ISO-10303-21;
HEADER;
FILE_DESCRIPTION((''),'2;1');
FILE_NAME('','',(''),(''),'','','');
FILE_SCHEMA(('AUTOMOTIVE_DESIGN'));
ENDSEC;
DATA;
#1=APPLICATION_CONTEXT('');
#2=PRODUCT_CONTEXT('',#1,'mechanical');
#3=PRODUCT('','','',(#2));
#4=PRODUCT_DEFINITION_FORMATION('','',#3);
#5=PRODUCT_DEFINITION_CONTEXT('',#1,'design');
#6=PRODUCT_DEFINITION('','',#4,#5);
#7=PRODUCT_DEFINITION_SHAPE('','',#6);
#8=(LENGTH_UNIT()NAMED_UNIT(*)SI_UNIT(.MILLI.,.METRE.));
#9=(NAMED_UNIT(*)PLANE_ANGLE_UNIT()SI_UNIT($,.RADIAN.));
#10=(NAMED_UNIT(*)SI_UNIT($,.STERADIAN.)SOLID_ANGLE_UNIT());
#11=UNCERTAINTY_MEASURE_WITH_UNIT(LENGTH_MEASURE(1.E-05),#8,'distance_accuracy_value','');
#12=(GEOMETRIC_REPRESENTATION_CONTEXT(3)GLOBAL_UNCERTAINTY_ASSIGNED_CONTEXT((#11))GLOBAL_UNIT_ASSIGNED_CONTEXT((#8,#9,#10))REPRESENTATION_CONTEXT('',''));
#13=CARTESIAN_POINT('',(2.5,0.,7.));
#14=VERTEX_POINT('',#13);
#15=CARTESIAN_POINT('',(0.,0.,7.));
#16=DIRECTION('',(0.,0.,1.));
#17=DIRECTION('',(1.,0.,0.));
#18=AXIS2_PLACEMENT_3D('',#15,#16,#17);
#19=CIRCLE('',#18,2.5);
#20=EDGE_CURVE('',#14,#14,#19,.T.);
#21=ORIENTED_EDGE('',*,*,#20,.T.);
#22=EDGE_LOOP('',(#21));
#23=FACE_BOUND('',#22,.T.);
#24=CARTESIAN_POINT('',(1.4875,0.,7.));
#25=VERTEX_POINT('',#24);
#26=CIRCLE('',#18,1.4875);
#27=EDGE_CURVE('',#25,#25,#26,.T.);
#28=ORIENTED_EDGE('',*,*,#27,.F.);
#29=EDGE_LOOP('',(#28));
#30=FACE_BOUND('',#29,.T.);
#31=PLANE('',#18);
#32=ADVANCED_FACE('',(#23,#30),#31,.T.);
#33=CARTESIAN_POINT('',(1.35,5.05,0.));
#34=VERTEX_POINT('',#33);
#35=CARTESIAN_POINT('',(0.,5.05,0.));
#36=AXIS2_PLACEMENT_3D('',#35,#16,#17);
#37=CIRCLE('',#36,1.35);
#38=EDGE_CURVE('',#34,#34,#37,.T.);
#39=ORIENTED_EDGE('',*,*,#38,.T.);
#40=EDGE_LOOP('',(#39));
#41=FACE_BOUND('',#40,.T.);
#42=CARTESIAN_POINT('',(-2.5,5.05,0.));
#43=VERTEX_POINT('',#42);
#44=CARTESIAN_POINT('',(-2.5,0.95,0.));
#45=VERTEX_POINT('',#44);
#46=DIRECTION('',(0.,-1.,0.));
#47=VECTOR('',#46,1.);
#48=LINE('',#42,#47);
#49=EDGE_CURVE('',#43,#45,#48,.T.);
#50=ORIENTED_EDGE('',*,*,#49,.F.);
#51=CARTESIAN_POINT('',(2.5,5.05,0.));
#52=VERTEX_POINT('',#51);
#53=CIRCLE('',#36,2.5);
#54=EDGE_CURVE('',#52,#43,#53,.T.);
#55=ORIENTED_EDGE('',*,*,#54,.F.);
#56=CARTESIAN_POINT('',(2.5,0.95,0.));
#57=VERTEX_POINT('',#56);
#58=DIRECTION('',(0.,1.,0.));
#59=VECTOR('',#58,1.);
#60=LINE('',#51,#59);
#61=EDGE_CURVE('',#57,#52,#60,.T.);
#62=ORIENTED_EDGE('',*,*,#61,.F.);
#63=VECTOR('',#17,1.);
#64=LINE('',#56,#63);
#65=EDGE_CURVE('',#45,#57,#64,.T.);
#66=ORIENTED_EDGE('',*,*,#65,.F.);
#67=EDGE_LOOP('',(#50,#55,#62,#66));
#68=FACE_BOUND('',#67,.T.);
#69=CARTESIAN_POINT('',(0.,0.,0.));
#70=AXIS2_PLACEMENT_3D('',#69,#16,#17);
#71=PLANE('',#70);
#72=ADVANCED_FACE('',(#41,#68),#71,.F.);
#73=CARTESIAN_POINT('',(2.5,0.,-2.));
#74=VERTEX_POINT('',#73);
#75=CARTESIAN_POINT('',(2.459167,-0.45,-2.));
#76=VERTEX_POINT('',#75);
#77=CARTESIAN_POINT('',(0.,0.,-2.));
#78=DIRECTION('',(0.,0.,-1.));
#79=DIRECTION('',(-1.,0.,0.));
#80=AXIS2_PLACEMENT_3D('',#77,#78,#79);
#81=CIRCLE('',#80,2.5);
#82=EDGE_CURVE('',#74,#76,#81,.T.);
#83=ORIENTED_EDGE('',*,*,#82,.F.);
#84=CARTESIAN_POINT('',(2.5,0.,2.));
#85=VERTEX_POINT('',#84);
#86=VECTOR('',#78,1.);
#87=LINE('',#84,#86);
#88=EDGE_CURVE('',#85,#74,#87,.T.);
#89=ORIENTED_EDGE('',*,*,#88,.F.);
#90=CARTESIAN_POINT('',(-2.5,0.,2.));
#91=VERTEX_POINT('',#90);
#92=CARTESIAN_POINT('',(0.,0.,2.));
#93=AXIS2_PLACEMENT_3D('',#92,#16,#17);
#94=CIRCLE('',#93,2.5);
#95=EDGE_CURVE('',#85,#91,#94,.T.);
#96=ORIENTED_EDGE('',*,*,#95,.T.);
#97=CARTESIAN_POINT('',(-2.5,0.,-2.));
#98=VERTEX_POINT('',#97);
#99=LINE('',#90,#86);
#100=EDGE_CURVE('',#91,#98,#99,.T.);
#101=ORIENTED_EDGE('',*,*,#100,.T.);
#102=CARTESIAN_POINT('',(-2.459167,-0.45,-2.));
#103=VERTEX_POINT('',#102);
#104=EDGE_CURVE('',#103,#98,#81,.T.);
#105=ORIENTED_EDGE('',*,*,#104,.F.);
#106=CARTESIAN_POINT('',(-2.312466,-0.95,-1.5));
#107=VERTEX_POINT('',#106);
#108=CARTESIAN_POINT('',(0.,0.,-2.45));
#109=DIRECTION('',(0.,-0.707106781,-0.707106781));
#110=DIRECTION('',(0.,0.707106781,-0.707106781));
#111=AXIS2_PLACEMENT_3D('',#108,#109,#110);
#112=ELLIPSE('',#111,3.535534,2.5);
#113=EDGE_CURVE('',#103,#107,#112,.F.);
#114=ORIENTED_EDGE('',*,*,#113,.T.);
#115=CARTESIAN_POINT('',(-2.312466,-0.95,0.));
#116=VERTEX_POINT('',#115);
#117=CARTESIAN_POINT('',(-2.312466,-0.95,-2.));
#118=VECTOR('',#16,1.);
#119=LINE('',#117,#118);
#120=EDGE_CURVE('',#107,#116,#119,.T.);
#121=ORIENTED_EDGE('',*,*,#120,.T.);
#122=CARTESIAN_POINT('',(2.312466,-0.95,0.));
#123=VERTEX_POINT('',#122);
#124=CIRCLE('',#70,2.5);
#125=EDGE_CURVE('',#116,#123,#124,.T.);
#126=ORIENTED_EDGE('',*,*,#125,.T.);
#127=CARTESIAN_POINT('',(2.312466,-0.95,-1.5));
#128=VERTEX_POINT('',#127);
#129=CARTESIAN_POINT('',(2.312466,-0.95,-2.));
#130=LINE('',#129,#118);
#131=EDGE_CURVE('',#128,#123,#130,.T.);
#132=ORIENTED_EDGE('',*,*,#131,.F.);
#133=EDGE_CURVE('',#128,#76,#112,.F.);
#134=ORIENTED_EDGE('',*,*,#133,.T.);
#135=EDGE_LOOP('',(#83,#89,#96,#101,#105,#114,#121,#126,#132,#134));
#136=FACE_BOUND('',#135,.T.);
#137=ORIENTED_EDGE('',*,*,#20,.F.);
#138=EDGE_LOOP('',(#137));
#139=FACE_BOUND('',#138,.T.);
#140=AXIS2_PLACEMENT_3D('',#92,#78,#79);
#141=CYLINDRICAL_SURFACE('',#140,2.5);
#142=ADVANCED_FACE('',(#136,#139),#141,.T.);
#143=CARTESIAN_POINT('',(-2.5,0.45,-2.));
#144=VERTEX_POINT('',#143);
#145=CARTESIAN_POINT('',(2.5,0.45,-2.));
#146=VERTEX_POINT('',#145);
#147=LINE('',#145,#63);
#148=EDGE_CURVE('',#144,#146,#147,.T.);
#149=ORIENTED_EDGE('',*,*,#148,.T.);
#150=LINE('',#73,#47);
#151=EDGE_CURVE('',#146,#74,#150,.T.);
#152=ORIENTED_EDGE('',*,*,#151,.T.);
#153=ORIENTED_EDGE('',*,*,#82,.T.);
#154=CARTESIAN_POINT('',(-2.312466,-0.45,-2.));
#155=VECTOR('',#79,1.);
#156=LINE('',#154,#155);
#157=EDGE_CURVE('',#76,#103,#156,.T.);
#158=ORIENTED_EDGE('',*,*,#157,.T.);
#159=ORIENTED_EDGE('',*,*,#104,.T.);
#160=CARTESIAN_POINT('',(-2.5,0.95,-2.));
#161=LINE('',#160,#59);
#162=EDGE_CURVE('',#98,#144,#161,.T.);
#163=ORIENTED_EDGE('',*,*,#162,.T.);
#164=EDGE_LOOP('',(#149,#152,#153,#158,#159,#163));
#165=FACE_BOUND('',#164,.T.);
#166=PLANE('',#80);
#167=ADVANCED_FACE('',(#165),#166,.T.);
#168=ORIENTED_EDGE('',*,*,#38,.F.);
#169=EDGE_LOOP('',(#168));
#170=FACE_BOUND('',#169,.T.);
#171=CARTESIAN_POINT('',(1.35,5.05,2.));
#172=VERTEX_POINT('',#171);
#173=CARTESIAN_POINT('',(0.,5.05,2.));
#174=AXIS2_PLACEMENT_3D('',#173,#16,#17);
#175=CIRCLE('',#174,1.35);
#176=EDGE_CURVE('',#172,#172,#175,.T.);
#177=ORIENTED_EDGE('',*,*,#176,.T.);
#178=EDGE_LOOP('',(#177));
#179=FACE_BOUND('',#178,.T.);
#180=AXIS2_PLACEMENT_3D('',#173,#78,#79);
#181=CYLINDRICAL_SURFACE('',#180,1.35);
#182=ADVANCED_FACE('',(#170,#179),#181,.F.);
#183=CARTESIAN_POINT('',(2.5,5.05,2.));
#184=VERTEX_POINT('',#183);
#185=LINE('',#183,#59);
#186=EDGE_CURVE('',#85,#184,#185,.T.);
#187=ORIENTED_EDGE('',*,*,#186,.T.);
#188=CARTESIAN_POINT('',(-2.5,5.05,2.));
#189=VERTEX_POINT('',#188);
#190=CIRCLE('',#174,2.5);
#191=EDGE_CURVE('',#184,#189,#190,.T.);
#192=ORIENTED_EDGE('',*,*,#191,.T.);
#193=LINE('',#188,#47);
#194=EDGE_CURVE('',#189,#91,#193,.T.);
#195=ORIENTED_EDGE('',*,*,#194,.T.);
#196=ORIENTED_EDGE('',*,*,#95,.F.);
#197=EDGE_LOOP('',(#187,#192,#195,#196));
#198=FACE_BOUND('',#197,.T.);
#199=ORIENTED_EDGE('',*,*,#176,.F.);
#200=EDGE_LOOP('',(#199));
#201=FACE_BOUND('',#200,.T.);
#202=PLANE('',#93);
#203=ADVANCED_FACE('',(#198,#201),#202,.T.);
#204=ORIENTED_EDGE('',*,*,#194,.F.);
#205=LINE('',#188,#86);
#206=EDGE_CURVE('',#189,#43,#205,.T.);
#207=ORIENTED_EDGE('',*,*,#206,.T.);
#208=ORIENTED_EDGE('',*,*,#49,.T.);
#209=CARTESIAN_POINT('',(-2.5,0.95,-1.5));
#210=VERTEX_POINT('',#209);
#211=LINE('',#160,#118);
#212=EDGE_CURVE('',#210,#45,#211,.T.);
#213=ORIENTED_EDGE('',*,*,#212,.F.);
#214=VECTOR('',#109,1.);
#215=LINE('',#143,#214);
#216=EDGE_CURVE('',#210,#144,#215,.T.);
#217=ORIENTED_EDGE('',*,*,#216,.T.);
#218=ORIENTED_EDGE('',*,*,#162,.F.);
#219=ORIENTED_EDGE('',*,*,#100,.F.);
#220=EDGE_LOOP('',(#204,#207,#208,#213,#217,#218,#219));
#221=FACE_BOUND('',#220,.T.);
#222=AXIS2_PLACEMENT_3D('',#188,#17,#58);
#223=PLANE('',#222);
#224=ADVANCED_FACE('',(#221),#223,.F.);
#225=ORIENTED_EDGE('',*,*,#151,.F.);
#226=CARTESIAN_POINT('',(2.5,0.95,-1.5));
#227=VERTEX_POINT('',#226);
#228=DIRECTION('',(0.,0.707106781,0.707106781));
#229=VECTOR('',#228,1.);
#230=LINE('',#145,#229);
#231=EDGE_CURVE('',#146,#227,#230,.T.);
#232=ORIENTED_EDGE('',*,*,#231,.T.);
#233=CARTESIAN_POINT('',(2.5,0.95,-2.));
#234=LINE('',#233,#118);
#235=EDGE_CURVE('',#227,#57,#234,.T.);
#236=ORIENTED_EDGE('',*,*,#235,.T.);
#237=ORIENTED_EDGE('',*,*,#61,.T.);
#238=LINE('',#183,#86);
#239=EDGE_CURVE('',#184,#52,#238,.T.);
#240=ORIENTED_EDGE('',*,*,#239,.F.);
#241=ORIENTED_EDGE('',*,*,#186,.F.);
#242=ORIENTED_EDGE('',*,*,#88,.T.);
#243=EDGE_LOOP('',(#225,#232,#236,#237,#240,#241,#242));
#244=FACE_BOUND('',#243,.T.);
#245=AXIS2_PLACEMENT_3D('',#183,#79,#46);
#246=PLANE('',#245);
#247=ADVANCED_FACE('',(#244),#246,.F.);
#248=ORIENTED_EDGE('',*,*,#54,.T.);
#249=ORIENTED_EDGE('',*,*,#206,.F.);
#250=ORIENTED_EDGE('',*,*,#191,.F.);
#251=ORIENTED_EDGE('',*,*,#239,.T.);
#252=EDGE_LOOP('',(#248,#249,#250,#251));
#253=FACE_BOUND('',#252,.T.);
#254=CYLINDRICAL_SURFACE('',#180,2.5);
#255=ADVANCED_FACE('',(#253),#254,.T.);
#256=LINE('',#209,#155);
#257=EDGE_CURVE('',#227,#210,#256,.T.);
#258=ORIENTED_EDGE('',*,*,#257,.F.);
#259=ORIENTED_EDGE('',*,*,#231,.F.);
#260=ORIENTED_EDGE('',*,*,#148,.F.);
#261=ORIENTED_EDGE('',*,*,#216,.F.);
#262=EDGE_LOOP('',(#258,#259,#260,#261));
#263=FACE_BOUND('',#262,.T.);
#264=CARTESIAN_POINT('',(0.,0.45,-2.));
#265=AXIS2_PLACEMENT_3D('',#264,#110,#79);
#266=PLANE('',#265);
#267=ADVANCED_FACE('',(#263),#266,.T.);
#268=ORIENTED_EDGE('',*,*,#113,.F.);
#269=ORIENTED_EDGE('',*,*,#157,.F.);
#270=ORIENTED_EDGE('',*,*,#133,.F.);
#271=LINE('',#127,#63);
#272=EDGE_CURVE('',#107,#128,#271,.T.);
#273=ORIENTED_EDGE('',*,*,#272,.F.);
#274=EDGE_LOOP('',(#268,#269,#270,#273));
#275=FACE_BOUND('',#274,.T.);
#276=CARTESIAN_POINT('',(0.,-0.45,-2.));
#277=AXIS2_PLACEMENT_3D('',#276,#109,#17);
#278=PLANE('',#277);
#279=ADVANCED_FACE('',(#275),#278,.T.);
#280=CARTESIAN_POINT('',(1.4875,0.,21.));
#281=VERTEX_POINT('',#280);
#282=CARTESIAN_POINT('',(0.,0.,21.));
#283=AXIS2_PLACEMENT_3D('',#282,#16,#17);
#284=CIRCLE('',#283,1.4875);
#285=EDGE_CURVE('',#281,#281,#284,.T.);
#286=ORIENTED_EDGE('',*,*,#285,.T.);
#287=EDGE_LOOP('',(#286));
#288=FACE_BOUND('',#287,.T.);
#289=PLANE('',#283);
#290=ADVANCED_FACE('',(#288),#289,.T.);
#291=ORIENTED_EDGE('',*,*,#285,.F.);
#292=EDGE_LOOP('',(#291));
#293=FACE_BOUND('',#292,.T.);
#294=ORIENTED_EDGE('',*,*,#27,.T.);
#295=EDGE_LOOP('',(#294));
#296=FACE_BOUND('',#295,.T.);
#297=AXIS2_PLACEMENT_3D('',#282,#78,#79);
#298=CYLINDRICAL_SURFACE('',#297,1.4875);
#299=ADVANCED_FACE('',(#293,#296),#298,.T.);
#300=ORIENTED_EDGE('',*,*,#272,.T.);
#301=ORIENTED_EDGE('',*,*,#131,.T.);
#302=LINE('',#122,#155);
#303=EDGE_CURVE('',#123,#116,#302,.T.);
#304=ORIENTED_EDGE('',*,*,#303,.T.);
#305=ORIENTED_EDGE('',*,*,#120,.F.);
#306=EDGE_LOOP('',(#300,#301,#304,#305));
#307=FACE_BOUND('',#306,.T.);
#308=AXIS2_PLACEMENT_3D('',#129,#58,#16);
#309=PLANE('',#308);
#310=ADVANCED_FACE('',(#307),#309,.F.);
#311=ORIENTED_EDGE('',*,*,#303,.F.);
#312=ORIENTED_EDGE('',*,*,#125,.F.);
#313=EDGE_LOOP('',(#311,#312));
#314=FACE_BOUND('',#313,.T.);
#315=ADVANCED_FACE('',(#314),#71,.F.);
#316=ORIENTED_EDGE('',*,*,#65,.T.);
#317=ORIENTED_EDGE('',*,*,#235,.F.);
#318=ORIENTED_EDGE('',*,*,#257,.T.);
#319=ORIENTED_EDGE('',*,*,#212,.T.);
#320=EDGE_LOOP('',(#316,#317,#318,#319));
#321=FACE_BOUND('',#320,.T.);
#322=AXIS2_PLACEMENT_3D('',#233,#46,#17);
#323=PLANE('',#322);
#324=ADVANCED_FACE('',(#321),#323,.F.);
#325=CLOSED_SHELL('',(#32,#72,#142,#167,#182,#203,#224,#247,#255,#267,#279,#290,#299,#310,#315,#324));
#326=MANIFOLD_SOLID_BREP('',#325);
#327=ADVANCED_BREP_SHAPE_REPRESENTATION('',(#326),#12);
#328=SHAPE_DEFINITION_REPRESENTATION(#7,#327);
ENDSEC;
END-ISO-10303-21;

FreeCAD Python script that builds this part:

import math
import FreeCAD as App
import Part
import Sketcher
Q = App.Units.Quantity


def edges_at(feature, points):
    """Names of the edges that pass closest to the given points."""
    edges = feature.Shape.Edges
    near = lambda p: min(range(len(edges)), key=lambda i: edges[i].distToShape(Part.Vertex(*p))[0])
    return sorted({f"Edge{near(p) + 1}" for p in points})

doc = App.newDocument("Part")
body = doc.addObject("PartDesign::Body", "Body")

# Sketch on XY plane
sketch1 = body.newObject("Sketcher::SketchObject", "Sketch")
sketch1.AttachmentSupport = (doc.getObject("XY_Plane"), [""])
sketch1.MapMode = "FlatFace"
sketch1.addGeometry([
    Part.LineSegment(App.Vector(-2.5, 5, 0), App.Vector(-2.5, 0, 0)),  # 0
    Part.ArcOfCircle(Part.Circle(App.Vector(0, 0, 0), App.Vector(0, 0, 1), 2.5), math.radians(180), math.radians(360)),  # 1
    Part.LineSegment(App.Vector(2.5, 0, 0), App.Vector(2.5, 5, 0)),  # 2
    Part.ArcOfCircle(Part.Circle(App.Vector(0, 5, 0), App.Vector(0, 0, 1), 2.5), math.radians(0), math.radians(180)),  # 3
    Part.Circle(App.Vector(0, 5, 0), App.Vector(0, 0, 1), 1.4),  # 4
], False)
sketch1.addConstraint([
    Sketcher.Constraint("Tangent", 0, 2, 1, 1),
    Sketcher.Constraint("Tangent", 1, 2, 2, 1),
    Sketcher.Constraint("Tangent", 2, 2, 3, 1),
    Sketcher.Constraint("Tangent", 3, 2, 0, 1),
    Sketcher.Constraint("Vertical", 0),
    Sketcher.Constraint("Vertical", 2),
    Sketcher.Constraint("Coincident", 1, 3, -1, 1),
    Sketcher.Constraint("Coincident", 4, 3, 3, 3),
    Sketcher.Constraint("Diameter", 4, Q("2.7 mm")),
    Sketcher.Constraint("Radius", 1, Q("2.5 mm")),
    Sketcher.Constraint("DistanceY", 0, 2, 0, 1, Q("5.05 mm")),
])
pad1 = body.newObject("PartDesign::Pad", "Pad")
pad1.Profile = sketch1
pad1.Length = 2

# Sketch on XY plane
sketch2 = body.newObject("Sketcher::SketchObject", "Sketch001")
sketch2.AttachmentSupport = (doc.getObject("XY_Plane"), [""])
sketch2.MapMode = "FlatFace"
sketch2.AttachmentOffset = App.Placement(App.Vector(0, 0, 2), App.Rotation())
sketch2.addGeometry(Part.Circle(App.Vector(0, 0, 0), App.Vector(0, 0, 1), 2.5), False)
sketch2.addConstraint([
    Sketcher.Constraint("Coincident", 0, 3, -1, 1),
    Sketcher.Constraint("Diameter", 0, Q("5 mm")),
])
pad2 = body.newObject("PartDesign::Pad", "Pad001")
pad2.Profile = sketch2
pad2.Length = 5

# Sketch on XY plane
sketch3 = body.newObject("Sketcher::SketchObject", "Sketch002")
sketch3.AttachmentSupport = (doc.getObject("XY_Plane"), [""])
sketch3.MapMode = "FlatFace"
sketch3.AttachmentOffset = App.Placement(App.Vector(0, 0, 7), App.Rotation())
sketch3.addGeometry(Part.Circle(App.Vector(0, 0, 0), App.Vector(0, 0, 1), 1.5), False)
sketch3.addConstraint([
    Sketcher.Constraint("Coincident", 0, 3, -1, 1),
    Sketcher.Constraint("Diameter", 0, Q("2.975 mm")),
])
pad3 = body.newObject("PartDesign::Pad", "Pad002")
pad3.Profile = sketch3
pad3.Length = 14

# Sketch on XY plane
sketch4 = body.newObject("Sketcher::SketchObject", "Sketch003")
sketch4.AttachmentSupport = (doc.getObject("XY_Plane"), [""])
sketch4.MapMode = "FlatFace"
sketch4.AttachmentOffset = App.Placement(App.Vector(0, 0, -2), App.Rotation())
sketch4.addGeometry([
    Part.LineSegment(App.Vector(2.5, 0.9, 0), App.Vector(2.5, 0, 0)),  # 0
    Part.ArcOfCircle(Part.Circle(App.Vector(0, 0, 0), App.Vector(0, 0, 1), 2.5), math.radians(-22), math.radians(0)),  # 1
    Part.LineSegment(App.Vector(2.3, -0.9, 0), App.Vector(-2.3, -0.9, 0)),  # 2
    Part.ArcOfCircle(Part.Circle(App.Vector(0, 0, 0), App.Vector(0, 0, 1), 2.5), math.radians(180), math.radians(202)),  # 3
    Part.LineSegment(App.Vector(-2.5, 0, 0), App.Vector(-2.5, 0.9, 0)),  # 4
    Part.LineSegment(App.Vector(-2.5, 0.9, 0), App.Vector(2.5, 0.9, 0)),  # 5
], False)
sketch4.addConstraint([
    Sketcher.Constraint("Tangent", 0, 2, 1, 2),
    Sketcher.Constraint("Coincident", 1, 1, 2, 1),
    Sketcher.Constraint("Coincident", 2, 2, 3, 2),
    Sketcher.Constraint("Tangent", 3, 1, 4, 1),
    Sketcher.Constraint("Coincident", 4, 2, 5, 1),
    Sketcher.Constraint("Coincident", 5, 2, 0, 1),
    Sketcher.Constraint("Vertical", 0),
    Sketcher.Constraint("Horizontal", 2),
    Sketcher.Constraint("Vertical", 4),
    Sketcher.Constraint("Horizontal", 5),
    Sketcher.Constraint("Coincident", 1, 3, -1, 1),
    Sketcher.Constraint("Coincident", 3, 3, -1, 1),
    Sketcher.Constraint("Equal", 1, 3),
    Sketcher.Constraint("Radius", 1, Q("2.5 mm")),
    Sketcher.Constraint("DistanceY", 0, 2, 0, 1, Q("0.95 mm")),
    Sketcher.Constraint("DistanceY", 2, 2, 4, 2, Q("1.9 mm")),
])
pad4 = body.newObject("PartDesign::Pad", "Pad003")
pad4.Profile = sketch4
pad4.Length = 2
doc.recompute()

chamfer = body.newObject("PartDesign::Chamfer", "Chamfer")
chamfer.Base = (pad4, edges_at(pad4, [(0, -0.95, -2), (0, 0.95, -2)]))
chamfer.Size = 0.5

doc.recompute()
